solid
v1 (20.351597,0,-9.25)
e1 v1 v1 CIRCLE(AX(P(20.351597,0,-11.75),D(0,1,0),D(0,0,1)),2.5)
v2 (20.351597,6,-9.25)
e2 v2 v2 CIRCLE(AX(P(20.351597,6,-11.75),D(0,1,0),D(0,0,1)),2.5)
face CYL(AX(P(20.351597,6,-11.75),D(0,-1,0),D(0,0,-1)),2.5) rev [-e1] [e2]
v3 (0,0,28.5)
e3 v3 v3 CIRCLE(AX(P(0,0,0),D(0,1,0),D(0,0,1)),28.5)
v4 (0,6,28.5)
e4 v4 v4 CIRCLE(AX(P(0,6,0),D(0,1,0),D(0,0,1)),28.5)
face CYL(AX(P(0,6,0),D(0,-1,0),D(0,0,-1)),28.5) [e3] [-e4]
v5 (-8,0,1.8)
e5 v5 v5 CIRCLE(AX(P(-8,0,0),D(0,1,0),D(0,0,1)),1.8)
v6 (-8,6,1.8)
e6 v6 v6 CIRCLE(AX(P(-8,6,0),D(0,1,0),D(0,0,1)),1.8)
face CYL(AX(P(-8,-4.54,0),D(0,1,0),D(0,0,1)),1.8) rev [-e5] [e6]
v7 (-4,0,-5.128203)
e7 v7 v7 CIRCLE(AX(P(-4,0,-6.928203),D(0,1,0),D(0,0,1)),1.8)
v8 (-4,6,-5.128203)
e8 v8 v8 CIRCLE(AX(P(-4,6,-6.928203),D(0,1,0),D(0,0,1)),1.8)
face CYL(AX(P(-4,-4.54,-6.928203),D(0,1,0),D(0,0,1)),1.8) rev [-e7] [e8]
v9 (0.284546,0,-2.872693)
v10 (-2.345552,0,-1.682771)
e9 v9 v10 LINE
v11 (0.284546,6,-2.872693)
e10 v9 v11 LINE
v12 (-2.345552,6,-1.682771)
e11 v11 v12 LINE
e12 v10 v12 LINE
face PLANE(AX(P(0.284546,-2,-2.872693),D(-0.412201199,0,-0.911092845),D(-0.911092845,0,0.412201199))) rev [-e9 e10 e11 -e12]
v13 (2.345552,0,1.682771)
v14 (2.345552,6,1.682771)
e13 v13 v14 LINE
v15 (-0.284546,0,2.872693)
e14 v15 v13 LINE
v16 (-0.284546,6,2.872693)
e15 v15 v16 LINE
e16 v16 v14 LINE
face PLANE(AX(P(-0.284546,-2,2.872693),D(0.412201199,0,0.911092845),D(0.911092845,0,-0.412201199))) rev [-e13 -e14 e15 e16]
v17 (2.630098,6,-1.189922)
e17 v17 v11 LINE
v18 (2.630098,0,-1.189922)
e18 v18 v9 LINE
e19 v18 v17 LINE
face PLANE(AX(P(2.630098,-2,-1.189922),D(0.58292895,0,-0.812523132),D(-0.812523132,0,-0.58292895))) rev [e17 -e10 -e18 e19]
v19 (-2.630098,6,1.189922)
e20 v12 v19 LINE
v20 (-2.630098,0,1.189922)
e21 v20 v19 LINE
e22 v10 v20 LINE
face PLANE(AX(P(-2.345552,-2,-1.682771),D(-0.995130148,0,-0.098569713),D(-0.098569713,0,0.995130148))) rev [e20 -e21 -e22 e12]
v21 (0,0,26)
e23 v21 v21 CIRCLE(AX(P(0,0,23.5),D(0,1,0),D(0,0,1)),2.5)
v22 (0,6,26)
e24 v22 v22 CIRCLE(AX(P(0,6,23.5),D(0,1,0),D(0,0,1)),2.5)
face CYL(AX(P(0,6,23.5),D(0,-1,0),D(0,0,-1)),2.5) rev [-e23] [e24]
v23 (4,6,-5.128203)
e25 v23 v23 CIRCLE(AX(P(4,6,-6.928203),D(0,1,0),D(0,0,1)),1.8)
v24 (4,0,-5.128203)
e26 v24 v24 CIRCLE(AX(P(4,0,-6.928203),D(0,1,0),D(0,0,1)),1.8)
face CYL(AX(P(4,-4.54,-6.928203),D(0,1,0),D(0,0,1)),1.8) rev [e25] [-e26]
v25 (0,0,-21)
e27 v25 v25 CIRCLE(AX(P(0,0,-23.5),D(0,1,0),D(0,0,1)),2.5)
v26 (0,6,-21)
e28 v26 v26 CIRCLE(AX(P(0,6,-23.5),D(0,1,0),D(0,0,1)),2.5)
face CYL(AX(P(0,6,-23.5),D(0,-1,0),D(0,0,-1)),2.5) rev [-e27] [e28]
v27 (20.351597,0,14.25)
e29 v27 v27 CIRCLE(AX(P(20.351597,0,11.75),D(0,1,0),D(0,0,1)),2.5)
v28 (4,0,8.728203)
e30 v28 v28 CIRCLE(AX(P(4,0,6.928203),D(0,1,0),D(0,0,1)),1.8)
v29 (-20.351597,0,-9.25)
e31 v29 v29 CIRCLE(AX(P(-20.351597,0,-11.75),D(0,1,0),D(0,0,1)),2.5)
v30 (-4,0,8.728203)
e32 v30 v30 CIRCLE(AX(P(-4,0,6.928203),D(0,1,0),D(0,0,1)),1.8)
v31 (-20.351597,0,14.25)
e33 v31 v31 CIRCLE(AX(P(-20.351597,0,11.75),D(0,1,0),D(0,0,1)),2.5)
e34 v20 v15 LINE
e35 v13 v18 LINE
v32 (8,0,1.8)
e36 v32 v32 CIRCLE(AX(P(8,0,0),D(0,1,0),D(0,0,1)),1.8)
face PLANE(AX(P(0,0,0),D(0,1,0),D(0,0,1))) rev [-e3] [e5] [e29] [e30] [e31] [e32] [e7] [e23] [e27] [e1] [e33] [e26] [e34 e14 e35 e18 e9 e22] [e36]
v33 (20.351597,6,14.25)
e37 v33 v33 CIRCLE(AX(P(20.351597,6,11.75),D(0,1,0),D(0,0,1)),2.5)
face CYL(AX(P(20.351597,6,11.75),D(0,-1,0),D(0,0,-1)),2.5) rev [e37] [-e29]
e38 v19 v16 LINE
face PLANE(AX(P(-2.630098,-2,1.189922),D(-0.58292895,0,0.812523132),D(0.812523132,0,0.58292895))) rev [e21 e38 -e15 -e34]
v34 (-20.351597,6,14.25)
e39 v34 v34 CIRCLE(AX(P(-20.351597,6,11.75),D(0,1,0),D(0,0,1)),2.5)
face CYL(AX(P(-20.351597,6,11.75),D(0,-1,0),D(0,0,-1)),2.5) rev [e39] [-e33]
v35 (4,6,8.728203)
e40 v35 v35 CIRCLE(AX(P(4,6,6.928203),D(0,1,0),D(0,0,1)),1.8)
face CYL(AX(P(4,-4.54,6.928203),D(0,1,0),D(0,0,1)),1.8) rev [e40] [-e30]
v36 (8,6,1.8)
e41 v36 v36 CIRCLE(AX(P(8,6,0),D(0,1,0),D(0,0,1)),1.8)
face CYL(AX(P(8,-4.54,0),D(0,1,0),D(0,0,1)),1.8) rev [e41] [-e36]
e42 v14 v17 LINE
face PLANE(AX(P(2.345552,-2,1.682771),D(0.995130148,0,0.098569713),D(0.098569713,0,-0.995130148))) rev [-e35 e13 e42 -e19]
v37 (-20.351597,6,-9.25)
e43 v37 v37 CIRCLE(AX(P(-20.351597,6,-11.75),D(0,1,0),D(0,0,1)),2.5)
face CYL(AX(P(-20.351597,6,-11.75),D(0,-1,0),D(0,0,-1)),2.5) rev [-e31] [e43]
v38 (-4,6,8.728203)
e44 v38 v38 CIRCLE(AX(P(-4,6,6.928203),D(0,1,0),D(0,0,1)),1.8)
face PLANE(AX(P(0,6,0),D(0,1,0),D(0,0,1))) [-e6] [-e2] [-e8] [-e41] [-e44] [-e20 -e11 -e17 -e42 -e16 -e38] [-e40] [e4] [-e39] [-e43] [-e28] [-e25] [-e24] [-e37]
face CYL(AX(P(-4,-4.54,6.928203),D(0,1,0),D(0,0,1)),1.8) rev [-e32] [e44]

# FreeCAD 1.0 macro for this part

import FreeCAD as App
import Part
import Sketcher
from FreeCAD import Vector
Q = App.Units.Quantity

doc = App.newDocument("Part")
params = doc.addObject("Spreadsheet::Sheet", "Params")
for row, (alias, value) in enumerate([
    ("sketch1_diameter", "57 mm"),
    ("sketch1_diameter2", "5 mm"),
    ("pad1_length", "6 mm"),
    ("pocket1_length", "8 mm"),
    ("sketch3_diameter", "3.6 mm"),
    ("pocket2_length", "10.54 mm"),
], start=1):
    params.set(f"A{row}", alias)
    params.set(f"B{row}", "=" + value)
    params.setAlias(f"B{row}", alias)

body = doc.addObject("PartDesign::Body", "Body")

# Sketch on XZ plane
sketch1 = body.newObject("Sketcher::SketchObject", "Sketch")
sketch1.AttachmentSupport = (doc.getObject("XZ_Plane"), [""])
sketch1.MapMode = "FlatFace"
sketch1.addGeometry([
    Part.Circle(Vector(0, 0, 0), Vector(0, 0, 1), 28.5),  # 0
    Part.Circle(Vector(-20.4, -11.8, 0), Vector(0, 0, 1), 2.5),  # 1
    Part.Circle(Vector(0, -23.5, 0), Vector(0, 0, 1), 2.5),  # 2
    Part.Circle(Vector(-20.4, 11.8, 0), Vector(0, 0, 1), 2.5),  # 3
    Part.Circle(Vector(20.4, -11.8, 0), Vector(0, 0, 1), 2.5),  # 4
    Part.Circle(Vector(0, 23.5, 0), Vector(0, 0, 1), 2.5),  # 5
    Part.Circle(Vector(20.4, 11.8, 0), Vector(0, 0, 1), 2.5),  # 6
], False)
sketch1.addConstraint([
    Sketcher.Constraint("Coincident", 0, 3, -1, 1),
    Sketcher.Constraint("Equal", 1, 2),
    Sketcher.Constraint("Equal", 2, 3),
    Sketcher.Constraint("Equal", 3, 4),
    Sketcher.Constraint("Equal", 4, 5),
    Sketcher.Constraint("Equal", 5, 6),
    Sketcher.Constraint("Symmetric", 3, 3, 4, 3, -1, 1),
    Sketcher.Constraint("Symmetric", 2, 3, 5, 3, -1, 1),
    Sketcher.Constraint("Symmetric", 1, 3, 6, 3, -1, 1),
    Sketcher.Constraint("Symmetric", 1, 3, 4, 3, -2),
    Sketcher.Constraint("PointOnObject", 2, 3, -2),
    Sketcher.Constraint("Diameter", 0, Q("57 mm")),
    Sketcher.Constraint("Diameter", 1, Q("5 mm")),
    Sketcher.Constraint("DistanceY", 2, 3, 5, 3, Q("47 mm")),
    Sketcher.Constraint("DistanceY", 1, 3, 3, 3, Q("23.5 mm")),
    Sketcher.Constraint("DistanceX", 1, 3, -1, 1, Q("20.351597 mm")),
])
sketch1.setExpression("Constraints[11]", "Params.sketch1_diameter")
sketch1.setExpression("Constraints[12]", "Params.sketch1_diameter2")
pad1 = body.newObject("PartDesign::Pad", "Pad")
pad1.Profile = sketch1
pad1.setExpression("Length", "Params.pad1_length")
pad1.Reversed = True

# Sketch on XZ plane
sketch2 = body.newObject("Sketcher::SketchObject", "Sketch001")
sketch2.AttachmentSupport = (doc.getObject("XZ_Plane"), [""])
sketch2.MapMode = "FlatFace"
sketch2.AttachmentOffset = App.Placement(Vector(0, 0, -6), App.Rotation())
sketch2.addGeometry([
    Part.LineSegment(Vector(-0.3, 2.9, 0), Vector(2.3, 1.7, 0)),  # 0
    Part.LineSegment(Vector(2.3, 1.7, 0), Vector(2.6, -1.2, 0)),  # 1
    Part.LineSegment(Vector(2.6, -1.2, 0), Vector(0.3, -2.9, 0)),  # 2
    Part.LineSegment(Vector(0.3, -2.9, 0), Vector(-2.3, -1.7, 0)),  # 3
    Part.LineSegment(Vector(-2.3, -1.7, 0), Vector(-2.6, 1.2, 0)),  # 4
    Part.LineSegment(Vector(-2.6, 1.2, 0), Vector(-0.3, 2.9, 0)),  # 5
], False)
sketch2.addConstraint([
    Sketcher.Constraint("Coincident", 0, 2, 1, 1),
    Sketcher.Constraint("Coincident", 1, 2, 2, 1),
    Sketcher.Constraint("Coincident", 2, 2, 3, 1),
    Sketcher.Constraint("Coincident", 3, 2, 4, 1),
    Sketcher.Constraint("Coincident", 4, 2, 5, 1),
    Sketcher.Constraint("Coincident", 5, 2, 0, 1),
    Sketcher.Constraint("Symmetric", 0, 2, 3, 2, -1, 1),
    Sketcher.Constraint("Symmetric", 1, 2, 4, 2, -1, 1),
    Sketcher.Constraint("Symmetric", 2, 2, 5, 2, -1, 1),
    Sketcher.Constraint("Equal", 0, 1),
    Sketcher.Constraint("Equal", 1, 2),
    Sketcher.Constraint("DistanceX", -1, 1, 1, 2, Q("2.630098 mm")),
    Sketcher.Constraint("DistanceX", 3, 2, 2, 2, Q("2.630098 mm")),
    Sketcher.Constraint("Distance", 0, Q("2.886751 mm")),
    Sketcher.Constraint("DistanceY", -1, 1, 0, 2, Q("1.682771 mm")),
])
pocket1 = body.newObject("PartDesign::Pocket", "Pocket")
pocket1.Profile = sketch2
pocket1.setExpression("Length", "Params.pocket1_length")
pocket1.Reversed = True

# Sketch on XZ plane
sketch3 = body.newObject("Sketcher::SketchObject", "Sketch002")
sketch3.AttachmentSupport = (doc.getObject("XZ_Plane"), [""])
sketch3.MapMode = "FlatFace"
sketch3.AttachmentOffset = App.Placement(Vector(0, 0, -6), App.Rotation())
sketch3.addGeometry([
    Part.Circle(Vector(8, 0, 0), Vector(0, 0, 1), 1.8),  # 0
    Part.Circle(Vector(4, 6.9, 0), Vector(0, 0, 1), 1.8),  # 1
    Part.Circle(Vector(-4, 6.9, 0), Vector(0, 0, 1), 1.8),  # 2
    Part.Circle(Vector(-8, 0, 0), Vector(0, 0, 1), 1.8),  # 3
    Part.Circle(Vector(-4, -6.9, 0), Vector(0, 0, 1), 1.8),  # 4
    Part.Circle(Vector(4, -6.9, 0), Vector(0, 0, 1), 1.8),  # 5
], False)
sketch3.addConstraint([
    Sketcher.Constraint("Equal", 0, 1),
    Sketcher.Constraint("Equal", 1, 2),
    Sketcher.Constraint("Equal", 2, 3),
    Sketcher.Constraint("Equal", 3, 4),
    Sketcher.Constraint("Equal", 4, 5),
    Sketcher.Constraint("Symmetric", 0, 3, 3, 3, -1, 1),
    Sketcher.Constraint("Symmetric", 1, 3, 4, 3, -1, 1),
    Sketcher.Constraint("Symmetric", 2, 3, 5, 3, -1, 1),
    Sketcher.Constraint("Symmetric", 1, 3, 2, 3, -2),
    Sketcher.Constraint("PointOnObject", 0, 3, -1),
    Sketcher.Constraint("Diameter", 0, Q("3.6 mm")),
    Sketcher.Constraint("DistanceX", -1, 1, 0, 3, Q("8 mm")),
    Sketcher.Constraint("DistanceX", -1, 1, 1, 3, Q("4 mm")),
    Sketcher.Constraint("DistanceY", -1, 1, 1, 3, Q("6.928203 mm")),
])
sketch3.setExpression("Constraints[10]", "Params.sketch3_diameter")
pocket2 = body.newObject("PartDesign::Pocket", "Pocket001")
pocket2.Profile = sketch3
pocket2.setExpression("Length", "Params.pocket2_length")
pocket2.Reversed = True

doc.recompute()
